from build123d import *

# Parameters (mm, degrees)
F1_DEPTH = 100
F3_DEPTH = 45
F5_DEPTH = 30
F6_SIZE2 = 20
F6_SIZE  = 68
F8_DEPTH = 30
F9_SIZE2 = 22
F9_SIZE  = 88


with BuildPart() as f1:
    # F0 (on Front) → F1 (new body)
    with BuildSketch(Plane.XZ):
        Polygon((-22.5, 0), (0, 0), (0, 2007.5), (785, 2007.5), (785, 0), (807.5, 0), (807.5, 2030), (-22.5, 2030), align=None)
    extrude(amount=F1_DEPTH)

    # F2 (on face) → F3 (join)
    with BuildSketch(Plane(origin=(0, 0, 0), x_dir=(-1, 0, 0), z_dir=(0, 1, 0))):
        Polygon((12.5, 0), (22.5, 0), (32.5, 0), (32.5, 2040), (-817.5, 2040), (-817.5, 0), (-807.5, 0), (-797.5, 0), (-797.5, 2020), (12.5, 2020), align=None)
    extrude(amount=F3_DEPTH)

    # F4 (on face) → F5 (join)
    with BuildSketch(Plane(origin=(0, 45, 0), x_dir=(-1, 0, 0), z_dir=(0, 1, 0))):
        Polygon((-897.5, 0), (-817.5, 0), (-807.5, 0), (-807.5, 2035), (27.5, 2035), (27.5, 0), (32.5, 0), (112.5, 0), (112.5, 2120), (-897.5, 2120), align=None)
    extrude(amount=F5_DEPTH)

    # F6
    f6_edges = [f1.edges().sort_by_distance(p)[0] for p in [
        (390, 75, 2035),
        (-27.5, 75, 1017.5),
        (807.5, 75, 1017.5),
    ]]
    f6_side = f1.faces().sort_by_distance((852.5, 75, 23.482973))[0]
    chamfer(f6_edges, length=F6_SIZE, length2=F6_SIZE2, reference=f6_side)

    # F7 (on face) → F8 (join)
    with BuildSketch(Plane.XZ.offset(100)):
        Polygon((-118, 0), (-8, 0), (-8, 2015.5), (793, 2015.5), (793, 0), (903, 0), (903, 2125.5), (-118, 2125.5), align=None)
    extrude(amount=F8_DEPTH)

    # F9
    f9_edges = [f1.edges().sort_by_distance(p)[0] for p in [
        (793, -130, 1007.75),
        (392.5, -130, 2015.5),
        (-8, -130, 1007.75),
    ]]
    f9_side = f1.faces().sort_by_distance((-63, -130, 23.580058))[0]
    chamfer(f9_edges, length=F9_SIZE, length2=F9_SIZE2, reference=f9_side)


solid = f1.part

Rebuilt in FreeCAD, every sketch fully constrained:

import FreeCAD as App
import Part
import Sketcher


def edges_at(feature, points):
    """Names of the edges that pass closest to the given points."""
    edges = feature.Shape.Edges
    near = lambda p: min(range(len(edges)), key=lambda i: edges[i].distToShape(Part.Vertex(*p))[0])
    return sorted({f"Edge{near(p) + 1}" for p in points})


def add_polygon(sketch, points):
    """Adds a closed chain of lines whose ends are joined by coincident constraints."""
    first, n = sketch.GeometryCount, len(points)
    for a, b in zip(points, points[1:] + points[:1]):
        sketch.addGeometry(Part.LineSegment(App.Vector(*a, 0), App.Vector(*b, 0)), False)
    for i in range(n):
        sketch.addConstraint(Sketcher.Constraint("Coincident", first + i, 2, first + (i + 1) % n, 1))

doc = App.newDocument("Part")
body = doc.addObject("PartDesign::Body", "Body")

sketch1 = body.newObject("Sketcher::SketchObject", "Sketch")
sketch1.AttachmentSupport = (doc.getObject("XZ_Plane"), [""])
sketch1.MapMode = "FlatFace"
add_polygon(sketch1, [(-22, 0), (0, 0), (0, 2008), (785, 2008), (785, 0), (808, 0), (808, 2030), (-22, 2030)])
sketch1.addConstraint([
    Sketcher.Constraint("Horizontal", 0),
    Sketcher.Constraint("Vertical", 1),
    Sketcher.Constraint("Horizontal", 2),
    Sketcher.Constraint("Vertical", 3),
    Sketcher.Constraint("Horizontal", 4),
    Sketcher.Constraint("Vertical", 5),
    Sketcher.Constraint("Horizontal", 6),
    Sketcher.Constraint("Vertical", 7),
    Sketcher.Constraint("Coincident", 0, 2, -1, 1),
    Sketcher.Constraint("PointOnObject", 3, 2, -1),
    Sketcher.Constraint("Equal", 0, 4),
    Sketcher.Constraint("DistanceX", 2, 1, 2, 2, 785.0),
    Sketcher.Constraint("DistanceX", 6, 2, 6, 1, 830.0),
    Sketcher.Constraint("DistanceY", 5, 1, 5, 2, 2030.0),
    Sketcher.Constraint("DistanceY", 1, 1, 1, 2, 2007.5),
])
pad1 = body.newObject("PartDesign::Pad", "Pad")
pad1.Profile = sketch1
pad1.Length = 100

sketch2 = body.newObject("Sketcher::SketchObject", "Sketch001")
sketch2.AttachmentSupport = (doc.getObject("XZ_Plane"), [""])
sketch2.MapMode = "FlatFace"
add_polygon(sketch2, [(-12, 0), (-32, 0), (-32, 2040), (818, 2040), (818, 0), (798, 0), (798, 2020), (-12, 2020)])
sketch2.addConstraint([
    Sketcher.Constraint("Horizontal", 0),
    Sketcher.Constraint("Vertical", 1),
    Sketcher.Constraint("Horizontal", 2),
    Sketcher.Constraint("Vertical", 3),
    Sketcher.Constraint("Horizontal", 4),
    Sketcher.Constraint("Vertical", 5),
    Sketcher.Constraint("Horizontal", 6),
    Sketcher.Constraint("Vertical", 7),
    Sketcher.Constraint("PointOnObject", 0, 2, -1),
    Sketcher.Constraint("PointOnObject", 3, 2, -1),
    Sketcher.Constraint("Equal", 0, 4),
    Sketcher.Constraint("DistanceX", 0, 2, 0, 1, 20.0),
    Sketcher.Constraint("DistanceX", 2, 1, 2, 2, 850.0),
    Sketcher.Constraint("DistanceY", 1, 1, 1, 2, 2040.0),
    Sketcher.Constraint("DistanceY", 5, 1, 5, 2, 2020.0),
    Sketcher.Constraint("DistanceX", 0, 2, -1, 1, 32.5),
])
pad2 = body.newObject("PartDesign::Pad", "Pad001")
pad2.Profile = sketch2
pad2.Length = 45
pad2.Reversed = True

sketch3 = body.newObject("Sketcher::SketchObject", "Sketch002")
sketch3.AttachmentSupport = (doc.getObject("XZ_Plane"), [""])
sketch3.MapMode = "FlatFace"
sketch3.AttachmentOffset = App.Placement(App.Vector(0, 0, -45), App.Rotation())
add_polygon(sketch3, [(898, 0), (808, 0), (808, 2035), (-28, 2035), (-28, 0), (-112, 0), (-112, 2120), (898, 2120)])
sketch3.addConstraint([
    Sketcher.Constraint("Horizontal", 0),
    Sketcher.Constraint("Vertical", 1),
    Sketcher.Constraint("Horizontal", 2),
    Sketcher.Constraint("Vertical", 3),
    Sketcher.Constraint("Horizontal", 4),
    Sketcher.Constraint("Vertical", 5),
    Sketcher.Constraint("Horizontal", 6),
    Sketcher.Constraint("Vertical", 7),
    Sketcher.Constraint("PointOnObject", 0, 2, -1),
    Sketcher.Constraint("PointOnObject", 3, 2, -1),
    Sketcher.Constraint("DistanceX", 0, 2, 0, 1, 90.0),
    Sketcher.Constraint("DistanceX", 2, 2, 2, 1, 835.0),
    Sketcher.Constraint("DistanceX", 4, 2, 4, 1, 85.0),
    Sketcher.Constraint("DistanceY", 1, 1, 1, 2, 2035.0),
    Sketcher.Constraint("DistanceY", 5, 1, 5, 2, 2120.0),
    Sketcher.Constraint("DistanceX", -1, 1, 0, 2, 807.5),
])
pad3 = body.newObject("PartDesign::Pad", "Pad002")
pad3.Profile = sketch3
pad3.Length = 30
pad3.Reversed = True
doc.recompute()

chamfer = body.newObject("PartDesign::Chamfer", "Chamfer")
chamfer.Base = (pad3, edges_at(pad3, [(390, 75, 2035), (-27.5, 75, 1017.5), (807.5, 75, 1017.5)]))
chamfer.ChamferType = "Two distances"
chamfer.Size = 68
chamfer.Size2 = 20
chamfer.FlipDirection = True

sketch4 = body.newObject("Sketcher::SketchObject", "Sketch003")
sketch4.AttachmentSupport = (doc.getObject("XZ_Plane"), [""])
sketch4.MapMode = "FlatFace"
sketch4.AttachmentOffset = App.Placement(App.Vector(0, 0, 100), App.Rotation())
add_polygon(sketch4, [(-118, 0), (-8, 0), (-8, 2016), (793, 2016), (793, 0), (903, 0), (903, 2126), (-118, 2126)])
sketch4.addConstraint([
    Sketcher.Constraint("Horizontal", 0),
    Sketcher.Constraint("Vertical", 1),
    Sketcher.Constraint("Horizontal", 2),
    Sketcher.Constraint("Vertical", 3),
    Sketcher.Constraint("Horizontal", 4),
    Sketcher.Constraint("Vertical", 5),
    Sketcher.Constraint("Horizontal", 6),
    Sketcher.Constraint("Vertical", 7),
    Sketcher.Constraint("PointOnObject", 0, 2, -1),
    Sketcher.Constraint("PointOnObject", 3, 2, -1),
    Sketcher.Constraint("Equal", 0, 4),
    Sketcher.Constraint("DistanceX", 0, 1, 0, 2, 110.0),
    Sketcher.Constraint("DistanceX", 2, 1, 2, 2, 801.0),
    Sketcher.Constraint("DistanceY", 1, 1, 1, 2, 2015.5),
    Sketcher.Constraint("DistanceY", 5, 1, 5, 2, 2125.5),
    Sketcher.Constraint("DistanceX", 0, 2, -1, 1, 8.0),
])
pad4 = body.newObject("PartDesign::Pad", "Pad003")
pad4.Profile = sketch4
pad4.Length = 30
doc.recompute()

chamfer2 = body.newObject("PartDesign::Chamfer", "Chamfer001")
chamfer2.Base = (pad4, edges_at(pad4, [(793, -130, 1007.75), (392.5, -130, 2015.5), (-8, -130, 1007.75)]))
chamfer2.ChamferType = "Two distances"
chamfer2.Size = 88
chamfer2.Size2 = 22
chamfer2.FlipDirection = True

doc.recompute()
